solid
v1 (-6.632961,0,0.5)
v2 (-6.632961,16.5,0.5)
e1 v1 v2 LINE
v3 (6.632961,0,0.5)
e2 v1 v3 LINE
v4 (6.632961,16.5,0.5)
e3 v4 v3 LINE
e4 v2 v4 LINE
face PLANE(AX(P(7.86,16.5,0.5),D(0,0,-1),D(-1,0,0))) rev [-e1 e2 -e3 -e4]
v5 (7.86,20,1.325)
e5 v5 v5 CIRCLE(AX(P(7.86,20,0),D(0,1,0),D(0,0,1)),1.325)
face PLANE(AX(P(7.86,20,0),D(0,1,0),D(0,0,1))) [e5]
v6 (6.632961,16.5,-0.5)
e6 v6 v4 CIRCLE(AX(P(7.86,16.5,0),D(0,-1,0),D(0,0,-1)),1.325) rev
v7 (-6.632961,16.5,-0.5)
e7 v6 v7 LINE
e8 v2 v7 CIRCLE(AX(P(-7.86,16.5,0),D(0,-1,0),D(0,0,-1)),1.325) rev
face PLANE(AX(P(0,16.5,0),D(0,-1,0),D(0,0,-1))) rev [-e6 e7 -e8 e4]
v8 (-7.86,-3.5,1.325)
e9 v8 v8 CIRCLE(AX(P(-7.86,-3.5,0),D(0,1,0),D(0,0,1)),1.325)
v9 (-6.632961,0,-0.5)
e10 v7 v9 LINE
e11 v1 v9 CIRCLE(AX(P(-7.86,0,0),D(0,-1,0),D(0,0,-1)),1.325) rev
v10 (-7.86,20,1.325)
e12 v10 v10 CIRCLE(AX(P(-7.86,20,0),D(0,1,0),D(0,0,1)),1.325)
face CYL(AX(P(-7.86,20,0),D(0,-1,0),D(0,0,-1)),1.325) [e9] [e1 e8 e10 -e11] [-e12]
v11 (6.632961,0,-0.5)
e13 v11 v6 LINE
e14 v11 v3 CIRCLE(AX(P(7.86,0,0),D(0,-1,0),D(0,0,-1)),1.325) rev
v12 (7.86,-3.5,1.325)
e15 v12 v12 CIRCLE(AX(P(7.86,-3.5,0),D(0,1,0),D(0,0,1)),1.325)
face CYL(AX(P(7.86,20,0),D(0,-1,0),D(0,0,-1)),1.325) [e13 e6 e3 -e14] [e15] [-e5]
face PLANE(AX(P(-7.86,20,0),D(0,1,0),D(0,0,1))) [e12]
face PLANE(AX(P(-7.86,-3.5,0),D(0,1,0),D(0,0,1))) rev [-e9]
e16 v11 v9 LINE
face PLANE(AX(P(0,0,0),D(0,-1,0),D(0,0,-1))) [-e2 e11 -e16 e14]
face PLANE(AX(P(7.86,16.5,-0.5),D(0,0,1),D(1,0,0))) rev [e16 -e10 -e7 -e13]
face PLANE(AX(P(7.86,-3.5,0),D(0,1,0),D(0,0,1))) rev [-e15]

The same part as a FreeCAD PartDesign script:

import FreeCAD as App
import Part
import Sketcher

V = App.Vector


def add_polygon(sketch, points):
    """Adds a closed chain of lines whose ends are joined by coincident constraints."""
    first, n = sketch.GeometryCount, len(points)
    for a, b in zip(points, points[1:] + points[:1]):
        sketch.addGeometry(Part.LineSegment(App.Vector(*a, 0), App.Vector(*b, 0)), False)
    for i in range(n):
        sketch.addConstraint(Sketcher.Constraint("Coincident", first + i, 2, first + (i + 1) % n, 1))

doc = App.newDocument("Part")
body = doc.addObject("PartDesign::Body", "Body")

sketch1 = body.newObject("Sketcher::SketchObject", "Sketch")
sketch1.AttachmentSupport = (doc.getObject("XZ_Plane"), [""])
sketch1.MapMode = "FlatFace"
add_polygon(sketch1, [(-7.9, -0.5), (-7.9, 0.5), (7.9, 0.5), (7.9, -0.5)])
sketch1.addConstraint(Sketcher.Constraint("Vertical", 0))
sketch1.addConstraint(Sketcher.Constraint("Horizontal", 1))
sketch1.addConstraint(Sketcher.Constraint("Vertical", 2))
sketch1.addConstraint(Sketcher.Constraint("Horizontal", 3))
sketch1.addConstraint(Sketcher.Constraint("Symmetric", 0, 2, 2, 2, -1, 1))
sketch1.addConstraint(Sketcher.Constraint("DistanceY", 0, 1, 0, 2, 1.0))
sketch1.addConstraint(Sketcher.Constraint("DistanceX", 1, 1, 1, 2, 15.72))
pad1 = body.newObject("PartDesign::Pad", "Pad")
pad1.Profile = sketch1
pad1.Length = 16.5
pad1.Reversed = True

sketch2 = body.newObject("Sketcher::SketchObject", "Sketch001")
sketch2.AttachmentSupport = (doc.getObject("XZ_Plane"), [""])
sketch2.MapMode = "FlatFace"
sketch2.AttachmentOffset = App.Placement(V(0, 0, -8.25), App.Rotation())
sketch2.addGeometry(Part.Circle(V(-7.9, 0, 0), V(0, 0, 1), 1.3), False)
sketch2.addGeometry(Part.Circle(V(7.9, 0, 0), V(0, 0, 1), 1.3), False)
sketch2.addConstraint(Sketcher.Constraint("Equal", 0, 1))
sketch2.addConstraint(Sketcher.Constraint("Symmetric", 0, 3, 1, 3, -1, 1))
sketch2.addConstraint(Sketcher.Constraint("PointOnObject", 0, 3, -1))
sketch2.addConstraint(Sketcher.Constraint("Diameter", 0, 2.65))
sketch2.addConstraint(Sketcher.Constraint("DistanceX", 0, 3, -1, 1, 7.86))
pad2 = body.newObject("PartDesign::Pad", "Pad001")
pad2.Profile = sketch2
pad2.Length = 23.5
pad2.Midplane = True

doc.recompute()
